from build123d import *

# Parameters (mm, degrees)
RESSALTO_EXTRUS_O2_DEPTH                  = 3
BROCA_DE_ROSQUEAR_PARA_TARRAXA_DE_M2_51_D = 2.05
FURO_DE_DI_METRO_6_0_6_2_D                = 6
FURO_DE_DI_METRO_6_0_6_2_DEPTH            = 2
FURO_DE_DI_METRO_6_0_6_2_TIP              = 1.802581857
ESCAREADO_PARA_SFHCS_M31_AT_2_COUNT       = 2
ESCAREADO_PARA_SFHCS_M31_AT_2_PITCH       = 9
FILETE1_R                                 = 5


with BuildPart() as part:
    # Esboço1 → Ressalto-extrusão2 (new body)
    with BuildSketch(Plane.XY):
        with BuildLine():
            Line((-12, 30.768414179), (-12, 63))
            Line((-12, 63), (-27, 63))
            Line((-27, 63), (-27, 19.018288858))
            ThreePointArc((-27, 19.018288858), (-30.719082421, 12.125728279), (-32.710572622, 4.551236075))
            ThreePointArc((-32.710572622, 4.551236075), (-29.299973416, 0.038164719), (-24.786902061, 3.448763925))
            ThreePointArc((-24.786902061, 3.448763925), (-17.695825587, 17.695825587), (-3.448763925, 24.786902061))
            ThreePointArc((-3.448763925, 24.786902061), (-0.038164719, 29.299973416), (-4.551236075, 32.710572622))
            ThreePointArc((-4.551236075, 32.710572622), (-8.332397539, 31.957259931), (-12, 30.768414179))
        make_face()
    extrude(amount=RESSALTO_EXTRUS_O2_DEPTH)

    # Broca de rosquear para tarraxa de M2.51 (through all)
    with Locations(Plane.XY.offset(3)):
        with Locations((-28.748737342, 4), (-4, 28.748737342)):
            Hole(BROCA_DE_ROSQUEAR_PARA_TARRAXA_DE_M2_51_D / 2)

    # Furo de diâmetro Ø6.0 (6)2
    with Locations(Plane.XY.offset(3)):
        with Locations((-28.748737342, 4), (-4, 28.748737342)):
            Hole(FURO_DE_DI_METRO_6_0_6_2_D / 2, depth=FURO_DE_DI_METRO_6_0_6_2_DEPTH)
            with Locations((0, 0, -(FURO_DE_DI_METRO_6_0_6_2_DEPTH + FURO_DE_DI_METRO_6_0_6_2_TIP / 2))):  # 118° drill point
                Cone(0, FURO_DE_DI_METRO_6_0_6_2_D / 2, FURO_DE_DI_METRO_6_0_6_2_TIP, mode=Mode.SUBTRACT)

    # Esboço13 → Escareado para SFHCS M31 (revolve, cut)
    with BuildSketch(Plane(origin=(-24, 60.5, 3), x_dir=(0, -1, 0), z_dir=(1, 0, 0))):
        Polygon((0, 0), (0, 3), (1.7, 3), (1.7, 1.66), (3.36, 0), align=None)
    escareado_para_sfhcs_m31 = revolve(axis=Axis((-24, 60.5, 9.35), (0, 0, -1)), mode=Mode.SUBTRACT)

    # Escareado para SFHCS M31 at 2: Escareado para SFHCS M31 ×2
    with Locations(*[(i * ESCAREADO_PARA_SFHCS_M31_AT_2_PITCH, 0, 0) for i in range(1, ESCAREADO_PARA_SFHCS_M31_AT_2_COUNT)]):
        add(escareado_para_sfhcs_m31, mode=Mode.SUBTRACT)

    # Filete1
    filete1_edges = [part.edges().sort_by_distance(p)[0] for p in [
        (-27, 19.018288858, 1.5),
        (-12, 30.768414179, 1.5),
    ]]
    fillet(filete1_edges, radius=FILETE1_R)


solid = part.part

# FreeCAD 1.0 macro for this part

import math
import FreeCAD as App
import Part
import Sketcher
Q = App.Units.Quantity


def edges_at(feature, points):
    """Names of the edges that pass closest to the given points."""
    edges = feature.Shape.Edges
    near = lambda p: min(range(len(edges)), key=lambda i: edges[i].distToShape(Part.Vertex(*p))[0])
    return sorted({f"Edge{near(p) + 1}" for p in points})

doc = App.newDocument("Part")
params = doc.addObject("Spreadsheet::Sheet", "Params")
for row, (alias, value) in enumerate([
    ("sketch1_radius", "4 mm"),
    ("sketch1_width", "15 mm"),
    ("pad1_length", "3 mm"),
    ("sketch2_diameter", "2.05 mm"),
    ("hole_diameter", "2.05 mm"),
    ("sketch3_diameter", "6 mm"),
    ("hole2_diameter", "6 mm"),
    ("hole2_depth", "2 mm"),
    ("sketch4_height", "3 mm"),
    ("sketch4_width", "1.7 mm"),
    ("sketch4_width2", "3.36 mm"),
    ("groove_angle", "360 deg"),
    ("linearpattern_pitch", "9 mm"),
    ("fillet_radius", "5 mm"),
], start=1):
    params.set(f"A{row}", alias)
    params.set(f"B{row}", "=" + value)
    params.setAlias(f"B{row}", alias)

body = doc.addObject("PartDesign::Body", "Body")

# Sketch on XY plane
sketch1 = doc.addObject("Sketcher::SketchObject", "Sketch")
body.addObject(sketch1)
sketch1.AttachmentSupport = (doc.XY_Plane, [""])
sketch1.MapMode = "FlatFace"
sketch1.addGeometry([
    Part.LineSegment(App.Vector(-12, 30.8, 0), App.Vector(-12, 63, 0)),  # 0
    Part.LineSegment(App.Vector(-12, 63, 0), App.Vector(-27, 63, 0)),  # 1
    Part.LineSegment(App.Vector(-27, 63, 0), App.Vector(-27, 19, 0)),  # 2
    Part.ArcOfCircle(Part.Circle(App.Vector(0, 0, 0), App.Vector(0, 0, 1), 33), math.radians(145), math.radians(172)),  # 3
    Part.ArcOfCircle(Part.Circle(App.Vector(-28.7, 4, 0), App.Vector(0, 0, 1), 4), math.radians(172), math.radians(352)),  # 4
    Part.ArcOfCircle(Part.Circle(App.Vector(0, 0, 0), App.Vector(0, 0, 1), 25), math.radians(98), math.radians(172)),  # 5
    Part.ArcOfCircle(Part.Circle(App.Vector(-4, 28.7, 0), App.Vector(0, 0, 1), 4), math.radians(-82), math.radians(98)),  # 6
    Part.ArcOfCircle(Part.Circle(App.Vector(0, 0, 0), App.Vector(0, 0, 1), 33), math.radians(97.92), math.radians(111.31)),  # 7
], False)
sketch1.addConstraint([
    Sketcher.Constraint("Coincident", 0, 2, 1, 1),
    Sketcher.Constraint("Coincident", 1, 2, 2, 1),
    Sketcher.Constraint("Coincident", 2, 2, 3, 1),
    Sketcher.Constraint("Tangent", 3, 2, 4, 1),
    Sketcher.Constraint("Tangent", 4, 2, 5, 2),
    Sketcher.Constraint("Tangent", 5, 1, 6, 1),
    Sketcher.Constraint("Tangent", 6, 2, 7, 1),
    Sketcher.Constraint("Coincident", 7, 2, 0, 1),
    Sketcher.Constraint("Vertical", 0),
    Sketcher.Constraint("Horizontal", 1),
    Sketcher.Constraint("Vertical", 2),
    Sketcher.Constraint("Coincident", 3, 3, -1, 1),
    Sketcher.Constraint("Coincident", 5, 3, -1, 1),
    Sketcher.Constraint("Coincident", 7, 3, -1, 1),
    Sketcher.Constraint("Equal", 4, 6),
    Sketcher.Constraint("Radius", 4, Q("4 mm")),
    Sketcher.Constraint("DistanceX", 1, 2, 1, 1, Q("15 mm")),
    Sketcher.Constraint("DistanceY", -1, 1, 4, 3, Q("4 mm")),
    Sketcher.Constraint("DistanceX", 6, 3, -1, 1, Q("4 mm")),
    Sketcher.Constraint("DistanceX", 0, 2, -1, 1, Q("12 mm")),
    Sketcher.Constraint("DistanceY", -1, 1, 0, 2, Q("63 mm")),
    Sketcher.Constraint("Radius", 3, Q("33.025677 mm")),
])
sketch1.setExpression("Constraints[15]", "Params.sketch1_radius")
sketch1.setExpression("Constraints[16]", "Params.sketch1_width")
pad1 = doc.addObject("PartDesign::Pad", "Pad")
body.addObject(pad1)
pad1.Profile = sketch1
pad1.setExpression("Length", "Params.pad1_length")

# Sketch on XY plane
sketch2 = doc.addObject("Sketcher::SketchObject", "Sketch001")
body.addObject(sketch2)
sketch2.AttachmentSupport = (doc.XY_Plane, [""])
sketch2.MapMode = "FlatFace"
sketch2.AttachmentOffset = App.Placement(App.Vector(0, 0, 3), App.Rotation())
sketch2.addGeometry([
    Part.Circle(App.Vector(-28.7, 4, 0), App.Vector(0, 0, 1), 1),
    Part.Circle(App.Vector(-4, 28.7, 0), App.Vector(0, 0, 1), 1),
], False)
sketch2.addConstraint([
    Sketcher.Constraint("Equal", 0, 1),
    Sketcher.Constraint("Diameter", 0, Q("2.05 mm")),
    Sketcher.Constraint("DistanceY", -1, 1, 0, 3, Q("4 mm")),
    Sketcher.Constraint("DistanceX", 1, 3, -1, 1, Q("4 mm")),
    Sketcher.Constraint("DistanceX", 0, 3, -1, 1, Q("28.748737 mm")),
    Sketcher.Constraint("DistanceY", -1, 1, 1, 3, Q("28.748737 mm")),
])
sketch2.setExpression("Constraints[1]", "Params.sketch2_diameter")
doc.recompute()
hole = doc.addObject("PartDesign::Hole", "Hole")
body.addObject(hole)
hole.Profile = sketch2
hole.ThreadType = "None"
hole.setExpression("Diameter", "Params.hole_diameter")
hole.DepthType = "ThroughAll"

# Sketch on XY plane
sketch3 = doc.addObject("Sketcher::SketchObject", "Sketch002")
body.addObject(sketch3)
sketch3.AttachmentSupport = (doc.XY_Plane, [""])
sketch3.MapMode = "FlatFace"
sketch3.AttachmentOffset = App.Placement(App.Vector(0, 0, 3), App.Rotation())
sketch3.addGeometry([
    Part.Circle(App.Vector(-28.7, 4, 0), App.Vector(0, 0, 1), 3),
    Part.Circle(App.Vector(-4, 28.7, 0), App.Vector(0, 0, 1), 3),
], False)
sketch3.addConstraint([
    Sketcher.Constraint("Equal", 0, 1),
    Sketcher.Constraint("Diameter", 0, Q("6 mm")),
    Sketcher.Constraint("DistanceY", -1, 1, 0, 3, Q("4 mm")),
    Sketcher.Constraint("DistanceX", 1, 3, -1, 1, Q("4 mm")),
    Sketcher.Constraint("DistanceX", 0, 3, -1, 1, Q("28.748737 mm")),
    Sketcher.Constraint("DistanceY", -1, 1, 1, 3, Q("28.748737 mm")),
])
sketch3.setExpression("Constraints[1]", "Params.sketch3_diameter")
doc.recompute()
hole2 = doc.addObject("PartDesign::Hole", "Hole001")
body.addObject(hole2)
hole2.Profile = sketch3
hole2.ThreadType = "None"
hole2.setExpression("Diameter", "Params.hole2_diameter")
hole2.DepthType = "Dimension"
hole2.setExpression("Depth", "Params.hole2_depth")
hole2.DrillPoint = "Angled"
hole2.DrillPointAngle = 118

# Sketch on YZ plane
sketch4 = doc.addObject("Sketcher::SketchObject", "Sketch003")
body.addObject(sketch4)
sketch4.AttachmentSupport = (doc.YZ_Plane, [""])
sketch4.MapMode = "FlatFace"
sketch4.AttachmentOffset = App.Placement(App.Vector(0, 0, -24), App.Rotation())
sketch4.addGeometry([
    Part.LineSegment(App.Vector(60.5, 0, 0), App.Vector(60.5, 3, 0)),  # 0
    Part.LineSegment(App.Vector(60.5, 3, 0), App.Vector(57.1, 3, 0)),  # 1
    Part.LineSegment(App.Vector(57.1, 3, 0), App.Vector(58.8, 1.3, 0)),  # 2
    Part.LineSegment(App.Vector(58.8, 1.3, 0), App.Vector(58.8, 0, 0)),  # 3
    Part.LineSegment(App.Vector(58.8, 0, 0), App.Vector(60.5, 0, 0)),  # 4
], False)
sketch4.addGeometry(Part.LineSegment(App.Vector(60.5, 3, 0), App.Vector(60.5, 0, 0)), True)  # axis
sketch4.addConstraint([
    Sketcher.Constraint("Coincident", 0, 2, 1, 1),
    Sketcher.Constraint("Coincident", 1, 2, 2, 1),
    Sketcher.Constraint("Coincident", 2, 2, 3, 1),
    Sketcher.Constraint("Coincident", 3, 2, 4, 1),
    Sketcher.Constraint("Coincident", 4, 2, 0, 1),
    Sketcher.Constraint("Vertical", 0),
    Sketcher.Constraint("Horizontal", 1),
    Sketcher.Constraint("Vertical", 3),
    Sketcher.Constraint("Horizontal", 4),
    Sketcher.Constraint("Vertical", 5),
    Sketcher.Constraint("Coincident", 5, 1, 0, 2),
    Sketcher.Constraint("PointOnObject", 3, 2, -1),
    Sketcher.Constraint("PointOnObject", 5, 2, -1),
    Sketcher.Constraint("DistanceY", 0, 1, 0, 2, Q("3 mm")),
    Sketcher.Constraint("Angle", 2, Q("-45 deg")),
    Sketcher.Constraint("DistanceX", 4, 1, 4, 2, Q("1.7 mm")),
    Sketcher.Constraint("DistanceX", 1, 2, 1, 1, Q("3.36 mm")),
    Sketcher.Constraint("DistanceX", -1, 1, 0, 2, Q("60.5 mm")),
])
sketch4.setExpression("Constraints[13]", "Params.sketch4_height")
sketch4.setExpression("Constraints[15]", "Params.sketch4_width")
sketch4.setExpression("Constraints[16]", "Params.sketch4_width2")
groove = doc.addObject("PartDesign::Groove", "Groove")
body.addObject(groove)
groove.Profile = sketch4
groove.ReferenceAxis = (sketch4, ["Axis0"])
groove.setExpression("Angle", "Params.groove_angle")
doc.recompute()

linearpattern = doc.addObject("PartDesign::LinearPattern", "LinearPattern")
body.addObject(linearpattern)
linearpattern.Originals = [groove]
linearpattern.Direction = (doc.X_Axis, [""])
linearpattern.Mode = "offset"
linearpattern.setExpression("Offset", "Params.linearpattern_pitch")
linearpattern.Occurrences = 2
body.Tip = linearpattern
doc.recompute()

fillet = doc.addObject("PartDesign::Fillet", "Fillet")
body.addObject(fillet)
fillet.Base = (linearpattern, edges_at(linearpattern, [(-27, 19.018, 1.5), (-12, 30.768, 1.5)]))
fillet.setExpression("Radius", "Params.fillet_radius")

doc.recompute()
